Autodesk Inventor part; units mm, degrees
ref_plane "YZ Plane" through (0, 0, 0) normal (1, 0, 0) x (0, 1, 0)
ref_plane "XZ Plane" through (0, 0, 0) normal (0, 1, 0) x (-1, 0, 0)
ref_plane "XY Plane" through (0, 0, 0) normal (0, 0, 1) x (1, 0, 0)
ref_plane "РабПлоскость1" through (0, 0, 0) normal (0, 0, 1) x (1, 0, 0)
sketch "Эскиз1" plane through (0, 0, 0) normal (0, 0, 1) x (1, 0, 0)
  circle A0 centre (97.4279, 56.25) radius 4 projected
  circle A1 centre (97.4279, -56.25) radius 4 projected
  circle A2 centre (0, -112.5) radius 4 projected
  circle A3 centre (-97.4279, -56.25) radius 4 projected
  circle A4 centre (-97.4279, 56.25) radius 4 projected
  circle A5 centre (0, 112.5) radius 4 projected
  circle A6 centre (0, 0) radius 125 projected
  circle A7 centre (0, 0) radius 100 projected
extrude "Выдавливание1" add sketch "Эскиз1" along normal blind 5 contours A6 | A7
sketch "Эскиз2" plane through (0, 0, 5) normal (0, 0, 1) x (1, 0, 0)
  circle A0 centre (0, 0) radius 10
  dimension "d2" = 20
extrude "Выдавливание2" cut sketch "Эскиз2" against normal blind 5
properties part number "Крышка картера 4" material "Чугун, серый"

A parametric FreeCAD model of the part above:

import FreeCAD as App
import Part
import Sketcher

V = App.Vector

doc = App.newDocument("Part")
body = doc.addObject("PartDesign::Body", "Body")

# Sketch on XY plane
sketch1 = body.newObject("Sketcher::SketchObject", "Sketch")
sketch1.AttachmentSupport = (doc.getObject("XY_Plane"), [""])
sketch1.MapMode = "FlatFace"
sketch1.addGeometry(Part.Circle(V(0, 0, 0), V(0, 0, 1), 125), False)
sketch1.addGeometry(Part.Circle(V(-97.4, -56.2, 0), V(0, 0, 1), 4), False)
sketch1.addGeometry(Part.Circle(V(0, -112.5, 0), V(0, 0, 1), 4), False)
sketch1.addGeometry(Part.Circle(V(97.4, -56.2, 0), V(0, 0, 1), 4), False)
sketch1.addGeometry(Part.Circle(V(-97.4, 56.2, 0), V(0, 0, 1), 4), False)
sketch1.addGeometry(Part.Circle(V(97.4, 56.2, 0), V(0, 0, 1), 4), False)
sketch1.addGeometry(Part.Circle(V(0, 112.5, 0), V(0, 0, 1), 4), False)
sketch1.addConstraint(Sketcher.Constraint("Coincident", 0, 3, -1, 1))
sketch1.addConstraint(Sketcher.Constraint("Equal", 1, 2))
sketch1.addConstraint(Sketcher.Constraint("Equal", 2, 3))
sketch1.addConstraint(Sketcher.Constraint("Equal", 3, 4))
sketch1.addConstraint(Sketcher.Constraint("Equal", 4, 5))
sketch1.addConstraint(Sketcher.Constraint("Equal", 5, 6))
sketch1.addConstraint(Sketcher.Constraint("Symmetric", 3, 3, 4, 3, -1, 1))
sketch1.addConstraint(Sketcher.Constraint("Symmetric", 1, 3, 5, 3, -1, 1))
sketch1.addConstraint(Sketcher.Constraint("Symmetric", 2, 3, 6, 3, -1, 1))
sketch1.addConstraint(Sketcher.Constraint("Symmetric", 1, 3, 3, 3, -2))
sketch1.addConstraint(Sketcher.Constraint("PointOnObject", 2, 3, -2))
sketch1.addConstraint(Sketcher.Constraint("Diameter", 0, 250.0))
sketch1.addConstraint(Sketcher.Constraint("Diameter", 1, 8.0))
sketch1.addConstraint(Sketcher.Constraint("DistanceY", 2, 3, -1, 1, 112.5))
sketch1.addConstraint(Sketcher.Constraint("DistanceY", 1, 3, 4, 3, 112.5))
sketch1.addConstraint(Sketcher.Constraint("DistanceX", 1, 3, -1, 1, 97.428))
pad1 = body.newObject("PartDesign::Pad", "Pad")
pad1.Profile = sketch1
pad1.Length = 5

# Sketch on XY plane
sketch2 = body.newObject("Sketcher::SketchObject", "Sketch001")
sketch2.AttachmentSupport = (doc.getObject("XY_Plane"), [""])
sketch2.MapMode = "FlatFace"
sketch2.AttachmentOffset = App.Placement(V(0, 0, 5), App.Rotation())
sketch2.addGeometry(Part.Circle(V(0, 0, 0), V(0, 0, 1), 10), False)
sketch2.addConstraint(Sketcher.Constraint("Coincident", 0, 3, -1, 1))
sketch2.addConstraint(Sketcher.Constraint("Diameter", 0, 20.0))
pocket1 = body.newObject("PartDesign::Pocket", "Pocket")
pocket1.Profile = sketch2
pocket1.Length = 5

doc.recompute()
